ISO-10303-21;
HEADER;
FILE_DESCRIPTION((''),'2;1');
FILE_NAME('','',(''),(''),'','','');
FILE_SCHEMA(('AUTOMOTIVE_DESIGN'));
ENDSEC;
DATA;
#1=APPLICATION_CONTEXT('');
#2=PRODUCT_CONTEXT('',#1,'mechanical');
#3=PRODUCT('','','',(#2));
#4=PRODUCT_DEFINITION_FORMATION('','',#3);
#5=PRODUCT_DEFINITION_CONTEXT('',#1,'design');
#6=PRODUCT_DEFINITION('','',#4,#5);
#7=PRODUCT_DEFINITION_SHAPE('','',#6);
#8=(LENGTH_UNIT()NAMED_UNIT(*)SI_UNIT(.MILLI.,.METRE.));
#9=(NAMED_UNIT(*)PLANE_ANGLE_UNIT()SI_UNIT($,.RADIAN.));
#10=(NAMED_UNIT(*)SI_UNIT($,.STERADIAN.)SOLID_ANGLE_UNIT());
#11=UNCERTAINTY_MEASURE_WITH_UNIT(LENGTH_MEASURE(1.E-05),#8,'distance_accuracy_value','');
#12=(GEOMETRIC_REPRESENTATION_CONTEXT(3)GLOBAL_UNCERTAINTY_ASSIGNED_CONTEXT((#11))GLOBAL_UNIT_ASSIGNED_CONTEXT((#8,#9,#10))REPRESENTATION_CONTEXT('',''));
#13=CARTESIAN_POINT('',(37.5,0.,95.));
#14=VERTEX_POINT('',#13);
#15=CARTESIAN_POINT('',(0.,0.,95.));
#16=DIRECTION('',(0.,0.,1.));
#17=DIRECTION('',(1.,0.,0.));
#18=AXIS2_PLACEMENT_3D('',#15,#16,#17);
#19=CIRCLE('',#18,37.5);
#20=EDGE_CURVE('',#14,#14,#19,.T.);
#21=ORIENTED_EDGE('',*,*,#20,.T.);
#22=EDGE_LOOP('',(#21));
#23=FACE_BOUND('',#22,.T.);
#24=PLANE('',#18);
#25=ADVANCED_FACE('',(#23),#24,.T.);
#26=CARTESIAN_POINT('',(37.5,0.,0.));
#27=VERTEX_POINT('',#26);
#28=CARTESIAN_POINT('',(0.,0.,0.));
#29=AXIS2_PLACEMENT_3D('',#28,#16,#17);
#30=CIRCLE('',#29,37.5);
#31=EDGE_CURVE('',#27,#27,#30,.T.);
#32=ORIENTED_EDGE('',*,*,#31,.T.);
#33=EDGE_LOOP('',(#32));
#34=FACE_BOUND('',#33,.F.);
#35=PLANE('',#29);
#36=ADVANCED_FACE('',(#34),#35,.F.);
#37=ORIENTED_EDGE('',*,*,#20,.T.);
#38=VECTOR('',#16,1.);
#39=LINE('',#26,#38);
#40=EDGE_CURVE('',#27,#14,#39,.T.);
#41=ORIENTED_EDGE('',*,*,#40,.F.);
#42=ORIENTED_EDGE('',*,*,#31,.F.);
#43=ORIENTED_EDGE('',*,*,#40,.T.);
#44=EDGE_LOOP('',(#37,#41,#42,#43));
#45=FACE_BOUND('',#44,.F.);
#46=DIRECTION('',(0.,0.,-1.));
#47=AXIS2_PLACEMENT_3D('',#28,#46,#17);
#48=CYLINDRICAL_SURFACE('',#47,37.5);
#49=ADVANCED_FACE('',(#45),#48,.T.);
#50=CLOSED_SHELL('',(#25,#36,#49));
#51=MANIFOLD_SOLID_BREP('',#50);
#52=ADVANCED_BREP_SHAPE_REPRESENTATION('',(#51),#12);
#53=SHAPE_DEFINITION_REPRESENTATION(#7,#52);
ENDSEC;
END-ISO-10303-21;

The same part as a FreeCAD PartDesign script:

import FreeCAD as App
import Part
import Sketcher

V = App.Vector
Q = App.Units.Quantity

doc = App.newDocument("Part")
body = doc.addObject("PartDesign::Body", "Body")

# Sketch on XY plane
sketch1 = body.newObject("Sketcher::SketchObject", "Sketch")
sketch1.AttachmentSupport = (doc.getObject("XY_Plane"), [""])
sketch1.MapMode = "FlatFace"
sketch1.addGeometry(Part.Circle(V(0, 0, 0), V(0, 0, 1), 38), False)
sketch1.addConstraint([
    Sketcher.Constraint("Coincident", 0, 3, -1, 1),
    Sketcher.Constraint("Diameter", 0, Q("75 mm")),
])
pad1 = body.newObject("PartDesign::Pad", "Pad")
pad1.Profile = sketch1
pad1.Length = 95

doc.recompute()
